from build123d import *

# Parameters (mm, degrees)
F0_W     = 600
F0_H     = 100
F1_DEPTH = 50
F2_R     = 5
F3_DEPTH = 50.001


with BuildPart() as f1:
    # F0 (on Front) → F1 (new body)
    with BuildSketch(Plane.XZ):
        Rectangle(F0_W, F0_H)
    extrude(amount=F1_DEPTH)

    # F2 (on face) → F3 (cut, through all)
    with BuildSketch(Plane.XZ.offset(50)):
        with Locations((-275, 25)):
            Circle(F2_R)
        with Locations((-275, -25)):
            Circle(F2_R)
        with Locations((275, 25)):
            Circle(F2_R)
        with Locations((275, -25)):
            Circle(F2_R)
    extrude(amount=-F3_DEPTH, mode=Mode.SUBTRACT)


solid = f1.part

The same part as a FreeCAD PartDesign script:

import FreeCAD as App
import Part
import Sketcher

doc = App.newDocument("Part")
body = doc.addObject("PartDesign::Body", "Body")

sketch1 = doc.addObject("Sketcher::SketchObject", "Sketch")
body.addObject(sketch1)
sketch1.AttachmentSupport = (doc.XZ_Plane, [""])
sketch1.MapMode = "FlatFace"
sketch1.addGeometry(Part.LineSegment(App.Vector(-300, 50, 0), App.Vector(-300, -50, 0)), False)
sketch1.addGeometry(Part.LineSegment(App.Vector(-300, -50, 0), App.Vector(300, -50, 0)), False)
sketch1.addGeometry(Part.LineSegment(App.Vector(300, -50, 0), App.Vector(300, 50, 0)), False)
sketch1.addGeometry(Part.LineSegment(App.Vector(300, 50, 0), App.Vector(-300, 50, 0)), False)
sketch1.addConstraint(Sketcher.Constraint("Coincident", 0, 2, 1, 1))
sketch1.addConstraint(Sketcher.Constraint("Coincident", 1, 2, 2, 1))
sketch1.addConstraint(Sketcher.Constraint("Coincident", 2, 2, 3, 1))
sketch1.addConstraint(Sketcher.Constraint("Coincident", 3, 2, 0, 1))
sketch1.addConstraint(Sketcher.Constraint("Vertical", 0))
sketch1.addConstraint(Sketcher.Constraint("Horizontal", 1))
sketch1.addConstraint(Sketcher.Constraint("Vertical", 2))
sketch1.addConstraint(Sketcher.Constraint("Horizontal", 3))
sketch1.addConstraint(Sketcher.Constraint("Symmetric", 0, 2, 2, 2, -1, 1))
sketch1.addConstraint(Sketcher.Constraint("DistanceX", 1, 1, 1, 2, 600.0))
sketch1.addConstraint(Sketcher.Constraint("DistanceY", 0, 2, 0, 1, 100.0))
pad1 = doc.addObject("PartDesign::Pad", "Pad")
body.addObject(pad1)
pad1.Profile = sketch1
pad1.Length = 50

sketch2 = doc.addObject("Sketcher::SketchObject", "Sketch001")
body.addObject(sketch2)
sketch2.AttachmentSupport = (doc.XZ_Plane, [""])
sketch2.MapMode = "FlatFace"
sketch2.AttachmentOffset = App.Placement(App.Vector(0, 0, 50), App.Rotation())
sketch2.addGeometry(Part.Circle(App.Vector(-275, 25, 0), App.Vector(0, 0, 1), 5), False)
sketch2.addGeometry(Part.Circle(App.Vector(-275, -25, 0), App.Vector(0, 0, 1), 5), False)
sketch2.addGeometry(Part.Circle(App.Vector(275, 25, 0), App.Vector(0, 0, 1), 5), False)
sketch2.addGeometry(Part.Circle(App.Vector(275, -25, 0), App.Vector(0, 0, 1), 5), False)
sketch2.addConstraint(Sketcher.Constraint("Equal", 0, 1))
sketch2.addConstraint(Sketcher.Constraint("Equal", 1, 2))
sketch2.addConstraint(Sketcher.Constraint("Equal", 2, 3))
sketch2.addConstraint(Sketcher.Constraint("Symmetric", 1, 3, 2, 3, -1, 1))
sketch2.addConstraint(Sketcher.Constraint("Symmetric", 0, 3, 3, 3, -1, 1))
sketch2.addConstraint(Sketcher.Constraint("Symmetric", 0, 3, 2, 3, -2))
sketch2.addConstraint(Sketcher.Constraint("Diameter", 0, 10.0))
sketch2.addConstraint(Sketcher.Constraint("DistanceX", 0, 3, -1, 1, 275.0))
sketch2.addConstraint(Sketcher.Constraint("DistanceY", -1, 1, 0, 3, 25.0))
pocket1 = doc.addObject("PartDesign::Pocket", "Pocket")
body.addObject(pocket1)
pocket1.Profile = sketch2
pocket1.Type = "ThroughAll"

doc.recompute()
